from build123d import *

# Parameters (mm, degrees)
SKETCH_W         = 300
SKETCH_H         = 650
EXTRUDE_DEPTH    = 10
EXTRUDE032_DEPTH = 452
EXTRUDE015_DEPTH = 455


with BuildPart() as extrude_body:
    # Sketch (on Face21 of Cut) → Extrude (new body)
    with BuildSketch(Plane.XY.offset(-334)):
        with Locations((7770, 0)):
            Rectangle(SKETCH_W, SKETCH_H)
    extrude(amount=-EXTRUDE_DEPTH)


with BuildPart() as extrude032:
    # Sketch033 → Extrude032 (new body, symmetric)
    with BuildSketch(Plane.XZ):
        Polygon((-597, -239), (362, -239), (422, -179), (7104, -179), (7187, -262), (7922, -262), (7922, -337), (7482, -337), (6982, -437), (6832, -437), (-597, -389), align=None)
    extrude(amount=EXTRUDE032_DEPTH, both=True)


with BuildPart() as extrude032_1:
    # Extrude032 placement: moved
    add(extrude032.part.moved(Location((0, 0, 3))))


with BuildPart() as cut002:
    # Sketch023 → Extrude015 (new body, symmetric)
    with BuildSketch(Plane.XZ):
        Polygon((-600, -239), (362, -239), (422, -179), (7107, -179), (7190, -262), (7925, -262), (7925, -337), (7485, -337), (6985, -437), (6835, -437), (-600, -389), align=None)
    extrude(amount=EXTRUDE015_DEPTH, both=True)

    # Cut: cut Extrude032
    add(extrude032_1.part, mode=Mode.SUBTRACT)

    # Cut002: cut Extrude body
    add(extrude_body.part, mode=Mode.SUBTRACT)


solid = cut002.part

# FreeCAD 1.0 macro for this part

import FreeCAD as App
import Part
import Sketcher
Q = App.Units.Quantity


def add_polygon(sketch, points):
    """Adds a closed chain of lines whose ends are joined by coincident constraints."""
    first, n = sketch.GeometryCount, len(points)
    for a, b in zip(points, points[1:] + points[:1]):
        sketch.addGeometry(Part.LineSegment(App.Vector(*a, 0), App.Vector(*b, 0)), False)
    for i in range(n):
        sketch.addConstraint(Sketcher.Constraint("Coincident", first + i, 2, first + (i + 1) % n, 1))

doc = App.newDocument("Part")
body = doc.addObject("PartDesign::Body", "Body")

# Sketch on XY plane
sketch1 = doc.addObject("Sketcher::SketchObject", "Sketch")
body.addObject(sketch1)
sketch1.AttachmentSupport = (doc.XY_Plane, [""])
sketch1.MapMode = "FlatFace"
sketch1.AttachmentOffset = App.Placement(App.Vector(0, 0, -334), App.Rotation())
add_polygon(sketch1, [(7620, 325), (7620, -325), (7920, -325), (7920, 325)])  # lines 0-3
sketch1.addConstraint(Sketcher.Constraint("Vertical", 0))
sketch1.addConstraint(Sketcher.Constraint("Horizontal", 1))
sketch1.addConstraint(Sketcher.Constraint("Vertical", 2))
sketch1.addConstraint(Sketcher.Constraint("Horizontal", 3))
sketch1.addConstraint(Sketcher.Constraint("DistanceX", 1, 1, 1, 2, 300.0))
sketch1.addConstraint(Sketcher.Constraint("DistanceY", 0, 2, 0, 1, 650.0))
sketch1.addConstraint(Sketcher.Constraint("DistanceX", -1, 1, 0, 2, 7620.0))
sketch1.addConstraint(Sketcher.Constraint("DistanceY", 0, 2, -1, 1, 325.0))
pad1 = doc.addObject("PartDesign::Pad", "Pad")
body.addObject(pad1)
pad1.Profile = sketch1
pad1.Length = 10
pad1.Reversed = True
body2 = doc.addObject("PartDesign::Body", "Body001")

# Sketch on XZ plane
sketch2 = doc.addObject("Sketcher::SketchObject", "Sketch001")
body2.addObject(sketch2)
sketch2.AttachmentSupport = (doc.getObject("XZ_Plane001"), [""])
sketch2.MapMode = "FlatFace"
add_polygon(sketch2, [(362, -239), (-597, -239), (-597, -389), (6832, -437), (6982, -437), (7482, -337), (7922, -337), (7922, -262), (7187, -262), (7104, -179), (422, -179)])  # lines 0-10
sketch2.addConstraint(Sketcher.Constraint("Horizontal", 0))
sketch2.addConstraint(Sketcher.Constraint("Vertical", 1))
sketch2.addConstraint(Sketcher.Constraint("Horizontal", 3))
sketch2.addConstraint(Sketcher.Constraint("Horizontal", 5))
sketch2.addConstraint(Sketcher.Constraint("Vertical", 6))
sketch2.addConstraint(Sketcher.Constraint("Horizontal", 7))
sketch2.addConstraint(Sketcher.Constraint("Horizontal", 9))
sketch2.addConstraint(Sketcher.Constraint("Perpendicular", 8, 10))
sketch2.addConstraint(Sketcher.Constraint("Equal", 3, 1))
sketch2.addConstraint(Sketcher.Constraint("DistanceX", 0, 2, 0, 1, 959.0))
sketch2.addConstraint(Sketcher.Constraint("DistanceX", 3, 1, 3, 2, 150.0))
sketch2.addConstraint(Sketcher.Constraint("DistanceX", 5, 1, 5, 2, 440.0))
sketch2.addConstraint(Sketcher.Constraint("DistanceX", 7, 2, 7, 1, 735.0))
sketch2.addConstraint(Sketcher.Constraint("DistanceX", 9, 2, 9, 1, 6682.0))
sketch2.addConstraint(Sketcher.Constraint("DistanceY", 6, 1, 6, 2, 75.0))
sketch2.addConstraint(Sketcher.Constraint("Angle", 8, Q("135 deg")))
sketch2.addConstraint(Sketcher.Constraint("DistanceX", 0, 2, -1, 1, 597.0))
sketch2.addConstraint(Sketcher.Constraint("DistanceY", 0, 2, -1, 1, 239.0))
sketch2.addConstraint(Sketcher.Constraint("DistanceX", -1, 1, 2, 2, 6832.0))
sketch2.addConstraint(Sketcher.Constraint("DistanceY", 2, 2, -1, 1, 437.0))
sketch2.addConstraint(Sketcher.Constraint("DistanceX", -1, 1, 4, 2, 7482.0))
sketch2.addConstraint(Sketcher.Constraint("DistanceY", 4, 2, -1, 1, 337.0))
pad2 = doc.addObject("PartDesign::Pad", "Pad001")
body2.addObject(pad2)
pad2.Profile = sketch2
pad2.Length = 904
pad2.Midplane = True
body3 = doc.addObject("PartDesign::Body", "Body002")
doc.recompute()

body2.Placement = App.Placement(App.Vector(0, 0, 3), App.Rotation(App.Vector(0, 0, 1), 0))
boolean = doc.addObject("PartDesign::Boolean", "Boolean")
body3.addObject(boolean)
boolean.Type = "Fuse"
boolean.addObjects([body2])
body4 = doc.addObject("PartDesign::Body", "Body003")

# Sketch on XZ plane
sketch3 = doc.addObject("Sketcher::SketchObject", "Sketch002")
body4.addObject(sketch3)
sketch3.AttachmentSupport = (doc.getObject("XZ_Plane003"), [""])
sketch3.MapMode = "FlatFace"
add_polygon(sketch3, [(362, -239), (-600, -239), (-600, -389), (6835, -437), (6985, -437), (7485, -337), (7925, -337), (7925, -262), (7190, -262), (7107, -179), (422, -179)])  # lines 0-10
sketch3.addConstraint(Sketcher.Constraint("Horizontal", 0))
sketch3.addConstraint(Sketcher.Constraint("Vertical", 1))
sketch3.addConstraint(Sketcher.Constraint("Horizontal", 3))
sketch3.addConstraint(Sketcher.Constraint("Horizontal", 5))
sketch3.addConstraint(Sketcher.Constraint("Vertical", 6))
sketch3.addConstraint(Sketcher.Constraint("Horizontal", 7))
sketch3.addConstraint(Sketcher.Constraint("Horizontal", 9))
sketch3.addConstraint(Sketcher.Constraint("Perpendicular", 8, 10))
sketch3.addConstraint(Sketcher.Constraint("Equal", 3, 1))
sketch3.addConstraint(Sketcher.Constraint("DistanceX", 0, 2, 0, 1, 962.0))
sketch3.addConstraint(Sketcher.Constraint("DistanceX", 3, 1, 3, 2, 150.0))
sketch3.addConstraint(Sketcher.Constraint("DistanceX", 5, 1, 5, 2, 440.0))
sketch3.addConstraint(Sketcher.Constraint("DistanceX", 7, 2, 7, 1, 735.0))
sketch3.addConstraint(Sketcher.Constraint("DistanceX", 9, 2, 9, 1, 6685.0))
sketch3.addConstraint(Sketcher.Constraint("DistanceY", 6, 1, 6, 2, 75.0))
sketch3.addConstraint(Sketcher.Constraint("Angle", 8, Q("135 deg")))
sketch3.addConstraint(Sketcher.Constraint("DistanceX", 0, 2, -1, 1, 600.0))
sketch3.addConstraint(Sketcher.Constraint("DistanceY", 0, 2, -1, 1, 239.0))
sketch3.addConstraint(Sketcher.Constraint("DistanceX", -1, 1, 2, 2, 6835.0))
sketch3.addConstraint(Sketcher.Constraint("DistanceY", 2, 2, -1, 1, 437.0))
sketch3.addConstraint(Sketcher.Constraint("DistanceX", -1, 1, 4, 2, 7485.0))
sketch3.addConstraint(Sketcher.Constraint("DistanceY", 4, 2, -1, 1, 337.0))
pad3 = doc.addObject("PartDesign::Pad", "Pad002")
body4.addObject(pad3)
pad3.Profile = sketch3
pad3.Length = 910
pad3.Midplane = True
doc.recompute()

boolean2 = doc.addObject("PartDesign::Boolean", "Boolean001")
body4.addObject(boolean2)
boolean2.Type = "Cut"
boolean2.addObjects([body3])
doc.recompute()

boolean3 = doc.addObject("PartDesign::Boolean", "Boolean002")
body4.addObject(boolean3)
boolean3.Type = "Cut"
boolean3.addObjects([body])

doc.recompute()
